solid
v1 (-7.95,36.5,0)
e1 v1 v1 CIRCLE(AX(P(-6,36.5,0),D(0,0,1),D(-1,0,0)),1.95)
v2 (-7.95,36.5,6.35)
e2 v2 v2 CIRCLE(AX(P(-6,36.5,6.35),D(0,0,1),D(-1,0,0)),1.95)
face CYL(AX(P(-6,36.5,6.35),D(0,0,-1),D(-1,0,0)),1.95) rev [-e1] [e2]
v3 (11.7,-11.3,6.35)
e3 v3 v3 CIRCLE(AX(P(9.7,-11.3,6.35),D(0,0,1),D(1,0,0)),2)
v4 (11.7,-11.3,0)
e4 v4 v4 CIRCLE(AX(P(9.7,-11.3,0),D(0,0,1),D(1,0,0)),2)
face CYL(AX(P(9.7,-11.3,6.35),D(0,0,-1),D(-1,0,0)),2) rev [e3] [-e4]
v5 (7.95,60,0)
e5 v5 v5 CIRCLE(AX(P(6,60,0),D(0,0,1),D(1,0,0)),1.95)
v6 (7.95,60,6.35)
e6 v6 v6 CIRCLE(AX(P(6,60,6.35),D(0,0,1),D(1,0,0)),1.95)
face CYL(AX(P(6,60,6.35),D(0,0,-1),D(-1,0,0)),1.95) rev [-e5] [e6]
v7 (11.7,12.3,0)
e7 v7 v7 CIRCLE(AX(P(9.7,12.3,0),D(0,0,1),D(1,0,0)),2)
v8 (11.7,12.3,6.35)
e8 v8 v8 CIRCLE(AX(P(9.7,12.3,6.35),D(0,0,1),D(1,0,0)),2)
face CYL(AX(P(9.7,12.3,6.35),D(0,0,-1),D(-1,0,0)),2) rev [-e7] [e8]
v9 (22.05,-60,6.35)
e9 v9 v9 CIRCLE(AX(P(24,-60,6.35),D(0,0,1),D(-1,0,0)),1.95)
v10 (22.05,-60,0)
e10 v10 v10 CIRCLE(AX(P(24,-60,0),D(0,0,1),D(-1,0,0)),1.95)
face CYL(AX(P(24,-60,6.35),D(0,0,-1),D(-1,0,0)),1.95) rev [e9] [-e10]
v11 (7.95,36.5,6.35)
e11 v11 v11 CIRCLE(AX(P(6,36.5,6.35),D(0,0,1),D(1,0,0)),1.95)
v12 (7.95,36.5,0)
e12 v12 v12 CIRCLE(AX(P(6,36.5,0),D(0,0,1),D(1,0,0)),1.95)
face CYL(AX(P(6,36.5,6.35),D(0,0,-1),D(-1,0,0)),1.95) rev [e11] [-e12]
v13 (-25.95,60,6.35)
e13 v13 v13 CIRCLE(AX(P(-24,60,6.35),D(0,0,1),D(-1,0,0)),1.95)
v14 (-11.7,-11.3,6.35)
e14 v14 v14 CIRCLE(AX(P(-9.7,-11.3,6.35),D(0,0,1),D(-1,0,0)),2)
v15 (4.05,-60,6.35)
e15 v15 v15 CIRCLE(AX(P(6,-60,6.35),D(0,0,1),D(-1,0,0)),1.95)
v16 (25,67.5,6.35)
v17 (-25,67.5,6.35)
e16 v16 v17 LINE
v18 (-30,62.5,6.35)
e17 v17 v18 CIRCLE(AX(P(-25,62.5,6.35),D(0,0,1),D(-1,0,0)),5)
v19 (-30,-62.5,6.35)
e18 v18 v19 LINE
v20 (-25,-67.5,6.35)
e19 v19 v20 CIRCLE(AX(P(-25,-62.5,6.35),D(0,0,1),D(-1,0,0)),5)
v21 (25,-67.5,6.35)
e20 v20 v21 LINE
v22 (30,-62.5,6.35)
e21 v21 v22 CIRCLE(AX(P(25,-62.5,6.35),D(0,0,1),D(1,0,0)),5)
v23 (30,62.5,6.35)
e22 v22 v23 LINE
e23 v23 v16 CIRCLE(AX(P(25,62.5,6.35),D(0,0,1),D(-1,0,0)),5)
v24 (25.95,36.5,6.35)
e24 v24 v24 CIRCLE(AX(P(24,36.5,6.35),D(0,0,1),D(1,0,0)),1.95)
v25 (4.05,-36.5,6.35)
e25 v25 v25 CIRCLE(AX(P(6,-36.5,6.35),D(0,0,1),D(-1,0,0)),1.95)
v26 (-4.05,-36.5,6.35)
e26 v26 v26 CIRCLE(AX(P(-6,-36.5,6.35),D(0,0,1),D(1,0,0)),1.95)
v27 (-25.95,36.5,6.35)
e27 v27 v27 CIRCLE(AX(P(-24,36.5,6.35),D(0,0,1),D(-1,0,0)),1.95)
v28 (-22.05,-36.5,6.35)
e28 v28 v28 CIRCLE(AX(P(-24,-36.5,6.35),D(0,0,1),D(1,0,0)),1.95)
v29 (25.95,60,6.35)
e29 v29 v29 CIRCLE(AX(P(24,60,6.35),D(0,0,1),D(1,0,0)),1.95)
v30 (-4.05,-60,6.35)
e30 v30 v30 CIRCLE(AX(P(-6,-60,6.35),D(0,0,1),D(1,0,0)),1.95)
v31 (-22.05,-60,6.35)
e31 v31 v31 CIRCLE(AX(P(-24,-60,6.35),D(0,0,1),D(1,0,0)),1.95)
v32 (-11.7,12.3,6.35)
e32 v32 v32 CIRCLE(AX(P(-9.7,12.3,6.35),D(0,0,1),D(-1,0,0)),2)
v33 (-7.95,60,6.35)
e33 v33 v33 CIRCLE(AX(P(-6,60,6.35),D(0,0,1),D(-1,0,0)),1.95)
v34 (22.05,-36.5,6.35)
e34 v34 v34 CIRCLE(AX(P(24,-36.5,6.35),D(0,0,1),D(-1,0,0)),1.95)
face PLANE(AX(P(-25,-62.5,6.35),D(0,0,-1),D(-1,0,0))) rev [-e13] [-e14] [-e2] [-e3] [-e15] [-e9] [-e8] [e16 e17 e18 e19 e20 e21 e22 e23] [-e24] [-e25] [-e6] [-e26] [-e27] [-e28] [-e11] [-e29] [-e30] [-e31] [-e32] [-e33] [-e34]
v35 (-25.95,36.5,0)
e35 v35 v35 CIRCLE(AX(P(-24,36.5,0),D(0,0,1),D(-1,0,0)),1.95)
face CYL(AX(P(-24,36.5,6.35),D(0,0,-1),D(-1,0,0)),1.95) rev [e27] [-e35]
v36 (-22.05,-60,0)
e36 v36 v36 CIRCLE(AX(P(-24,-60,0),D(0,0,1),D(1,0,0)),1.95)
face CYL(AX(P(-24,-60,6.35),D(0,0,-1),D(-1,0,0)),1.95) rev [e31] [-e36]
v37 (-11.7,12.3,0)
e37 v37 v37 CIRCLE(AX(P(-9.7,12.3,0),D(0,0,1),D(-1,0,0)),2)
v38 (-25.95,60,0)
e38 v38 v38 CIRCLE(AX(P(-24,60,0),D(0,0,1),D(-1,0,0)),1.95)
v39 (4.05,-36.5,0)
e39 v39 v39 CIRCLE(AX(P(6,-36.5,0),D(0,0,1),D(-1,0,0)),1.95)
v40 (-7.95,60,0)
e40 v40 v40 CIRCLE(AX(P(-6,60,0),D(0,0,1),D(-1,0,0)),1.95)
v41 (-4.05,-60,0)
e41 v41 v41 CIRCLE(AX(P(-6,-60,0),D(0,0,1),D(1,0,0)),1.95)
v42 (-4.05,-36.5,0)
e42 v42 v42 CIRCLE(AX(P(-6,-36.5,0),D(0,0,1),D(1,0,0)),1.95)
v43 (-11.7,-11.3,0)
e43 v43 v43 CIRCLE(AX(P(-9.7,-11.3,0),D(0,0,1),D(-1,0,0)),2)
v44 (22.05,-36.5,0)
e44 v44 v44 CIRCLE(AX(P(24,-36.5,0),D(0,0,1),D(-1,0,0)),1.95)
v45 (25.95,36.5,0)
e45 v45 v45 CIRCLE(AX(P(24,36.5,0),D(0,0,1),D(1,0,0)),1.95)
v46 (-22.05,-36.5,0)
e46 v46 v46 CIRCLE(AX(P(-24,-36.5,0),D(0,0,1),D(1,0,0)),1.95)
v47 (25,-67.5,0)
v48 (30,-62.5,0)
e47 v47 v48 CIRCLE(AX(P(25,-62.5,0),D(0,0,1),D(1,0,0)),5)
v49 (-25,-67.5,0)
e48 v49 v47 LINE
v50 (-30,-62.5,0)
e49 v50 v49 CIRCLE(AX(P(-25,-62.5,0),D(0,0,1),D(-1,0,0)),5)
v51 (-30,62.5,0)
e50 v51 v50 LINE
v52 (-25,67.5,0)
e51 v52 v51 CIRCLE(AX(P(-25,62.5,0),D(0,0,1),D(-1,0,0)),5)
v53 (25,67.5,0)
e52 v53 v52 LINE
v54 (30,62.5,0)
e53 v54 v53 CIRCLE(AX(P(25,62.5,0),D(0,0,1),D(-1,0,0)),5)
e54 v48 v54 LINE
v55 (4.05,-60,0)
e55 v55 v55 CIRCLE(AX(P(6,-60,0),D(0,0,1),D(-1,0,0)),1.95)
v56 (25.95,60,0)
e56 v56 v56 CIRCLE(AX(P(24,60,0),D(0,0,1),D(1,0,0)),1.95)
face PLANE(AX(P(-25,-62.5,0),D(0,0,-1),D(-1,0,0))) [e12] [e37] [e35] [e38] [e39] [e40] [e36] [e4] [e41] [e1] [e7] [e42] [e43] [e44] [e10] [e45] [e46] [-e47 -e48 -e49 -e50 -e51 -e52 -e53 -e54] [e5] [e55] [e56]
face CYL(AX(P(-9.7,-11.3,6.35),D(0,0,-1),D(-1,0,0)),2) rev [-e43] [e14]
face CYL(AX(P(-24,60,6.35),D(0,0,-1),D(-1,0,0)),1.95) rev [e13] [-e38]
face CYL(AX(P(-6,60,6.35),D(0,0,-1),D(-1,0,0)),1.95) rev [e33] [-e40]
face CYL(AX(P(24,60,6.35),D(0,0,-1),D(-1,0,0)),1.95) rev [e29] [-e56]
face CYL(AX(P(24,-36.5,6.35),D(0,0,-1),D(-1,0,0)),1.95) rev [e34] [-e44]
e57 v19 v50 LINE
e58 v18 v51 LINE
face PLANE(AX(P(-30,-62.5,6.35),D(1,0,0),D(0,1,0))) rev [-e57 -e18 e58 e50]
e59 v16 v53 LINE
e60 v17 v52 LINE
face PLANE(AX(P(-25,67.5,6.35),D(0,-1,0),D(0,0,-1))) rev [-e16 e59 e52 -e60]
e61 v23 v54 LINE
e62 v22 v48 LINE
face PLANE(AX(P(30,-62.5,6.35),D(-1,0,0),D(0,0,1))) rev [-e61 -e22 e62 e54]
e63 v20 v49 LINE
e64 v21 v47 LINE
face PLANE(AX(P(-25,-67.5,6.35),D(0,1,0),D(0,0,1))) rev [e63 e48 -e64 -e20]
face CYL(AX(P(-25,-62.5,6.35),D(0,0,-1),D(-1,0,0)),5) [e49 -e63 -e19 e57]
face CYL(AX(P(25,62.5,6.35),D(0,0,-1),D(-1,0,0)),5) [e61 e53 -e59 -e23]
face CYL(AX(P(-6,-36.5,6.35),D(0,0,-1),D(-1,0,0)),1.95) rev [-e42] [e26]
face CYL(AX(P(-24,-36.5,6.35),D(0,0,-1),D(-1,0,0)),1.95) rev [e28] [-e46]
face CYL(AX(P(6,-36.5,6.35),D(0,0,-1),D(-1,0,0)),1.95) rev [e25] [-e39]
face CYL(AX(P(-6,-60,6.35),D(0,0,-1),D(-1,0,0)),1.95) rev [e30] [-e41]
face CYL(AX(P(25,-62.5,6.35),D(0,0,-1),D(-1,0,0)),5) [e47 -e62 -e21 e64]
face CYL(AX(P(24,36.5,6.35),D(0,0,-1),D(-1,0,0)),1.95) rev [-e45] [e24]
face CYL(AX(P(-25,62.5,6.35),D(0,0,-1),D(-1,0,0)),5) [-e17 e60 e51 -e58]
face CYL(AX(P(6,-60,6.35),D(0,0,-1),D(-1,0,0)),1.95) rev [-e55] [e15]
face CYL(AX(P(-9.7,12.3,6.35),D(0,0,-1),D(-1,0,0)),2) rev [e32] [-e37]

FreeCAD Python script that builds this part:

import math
import FreeCAD as App
import Part
import Sketcher

V = App.Vector

doc = App.newDocument("Part")
body = doc.addObject("PartDesign::Body", "Body")

# Sketch on XY plane
sketch1 = body.newObject("Sketcher::SketchObject", "Sketch")
sketch1.AttachmentSupport = (doc.getObject("XY_Plane"), [""])
sketch1.MapMode = "FlatFace"
sketch1.addGeometry(Part.LineSegment(V(-25, -67.5, 0), V(25, -67.5, 0)), False)
sketch1.addGeometry(Part.ArcOfCircle(Part.Circle(V(25, -62.5, 0), V(0, 0, 1), 5), math.radians(-90), math.radians(0)), False)
sketch1.addGeometry(Part.LineSegment(V(30, -62.5, 0), V(30, 62.5, 0)), False)
sketch1.addGeometry(Part.ArcOfCircle(Part.Circle(V(25, 62.5, 0), V(0, 0, 1), 5), math.radians(0), math.radians(90)), False)
sketch1.addGeometry(Part.LineSegment(V(25, 67.5, 0), V(-25, 67.5, 0)), False)
sketch1.addGeometry(Part.ArcOfCircle(Part.Circle(V(-25, 62.5, 0), V(0, 0, 1), 5), math.radians(90), math.radians(180)), False)
sketch1.addGeometry(Part.LineSegment(V(-30, 62.5, 0), V(-30, -62.5, 0)), False)
sketch1.addGeometry(Part.ArcOfCircle(Part.Circle(V(-25, -62.5, 0), V(0, 0, 1), 5), math.radians(180), math.radians(270)), False)
sketch1.addGeometry(Part.Circle(V(-24, -60, 0), V(0, 0, 1), 1.95), False)
sketch1.addGeometry(Part.Circle(V(-24, -36.5, 0), V(0, 0, 1), 1.95), False)
sketch1.addGeometry(Part.Circle(V(-6, -60, 0), V(0, 0, 1), 1.95), False)
sketch1.addGeometry(Part.Circle(V(-6, -36.5, 0), V(0, 0, 1), 1.95), False)
sketch1.addGeometry(Part.Circle(V(-9.7, -11.3, 0), V(0, 0, 1), 2), False)
sketch1.addGeometry(Part.Circle(V(6, -60, 0), V(0, 0, 1), 1.95), False)
sketch1.addGeometry(Part.Circle(V(6, -36.5, 0), V(0, 0, 1), 1.95), False)
sketch1.addGeometry(Part.Circle(V(24, -60, 0), V(0, 0, 1), 1.95), False)
sketch1.addGeometry(Part.Circle(V(24, -36.5, 0), V(0, 0, 1), 1.95), False)
sketch1.addGeometry(Part.Circle(V(9.7, -11.3, 0), V(0, 0, 1), 2), False)
sketch1.addGeometry(Part.Circle(V(-9.7, 12.3, 0), V(0, 0, 1), 2), False)
sketch1.addGeometry(Part.Circle(V(-24, 36.5, 0), V(0, 0, 1), 1.95), False)
sketch1.addGeometry(Part.Circle(V(-24, 60, 0), V(0, 0, 1), 1.95), False)
sketch1.addGeometry(Part.Circle(V(-6, 36.5, 0), V(0, 0, 1), 1.95), False)
sketch1.addGeometry(Part.Circle(V(-6, 60, 0), V(0, 0, 1), 1.95), False)
sketch1.addGeometry(Part.Circle(V(9.7, 12.3, 0), V(0, 0, 1), 2), False)
sketch1.addGeometry(Part.Circle(V(6, 36.5, 0), V(0, 0, 1), 1.95), False)
sketch1.addGeometry(Part.Circle(V(6, 60, 0), V(0, 0, 1), 1.95), False)
sketch1.addGeometry(Part.Circle(V(24, 36.5, 0), V(0, 0, 1), 1.95), False)
sketch1.addGeometry(Part.Circle(V(24, 60, 0), V(0, 0, 1), 1.95), False)
sketch1.addConstraint(Sketcher.Constraint("Tangent", 0, 2, 1, 1))
sketch1.addConstraint(Sketcher.Constraint("Tangent", 1, 2, 2, 1))
sketch1.addConstraint(Sketcher.Constraint("Tangent", 2, 2, 3, 1))
sketch1.addConstraint(Sketcher.Constraint("Tangent", 3, 2, 4, 1))
sketch1.addConstraint(Sketcher.Constraint("Tangent", 4, 2, 5, 1))
sketch1.addConstraint(Sketcher.Constraint("Tangent", 5, 2, 6, 1))
sketch1.addConstraint(Sketcher.Constraint("Tangent", 6, 2, 7, 1))
sketch1.addConstraint(Sketcher.Constraint("Tangent", 7, 2, 0, 1))
sketch1.addConstraint(Sketcher.Constraint("Horizontal", 0))
sketch1.addConstraint(Sketcher.Constraint("Vertical", 2))
sketch1.addConstraint(Sketcher.Constraint("Horizontal", 4))
sketch1.addConstraint(Sketcher.Constraint("Vertical", 6))
sketch1.addConstraint(Sketcher.Constraint("Equal", 1, 3))
sketch1.addConstraint(Sketcher.Constraint("Equal", 3, 5))
sketch1.addConstraint(Sketcher.Constraint("Equal", 5, 7))
sketch1.addConstraint(Sketcher.Constraint("Equal", 8, 9))
sketch1.addConstraint(Sketcher.Constraint("Equal", 9, 10))
sketch1.addConstraint(Sketcher.Constraint("Equal", 10, 11))
sketch1.addConstraint(Sketcher.Constraint("Equal", 11, 13))
sketch1.addConstraint(Sketcher.Constraint("Equal", 13, 14))
sketch1.addConstraint(Sketcher.Constraint("Equal", 14, 15))
sketch1.addConstraint(Sketcher.Constraint("Equal", 15, 16))
sketch1.addConstraint(Sketcher.Constraint("Equal", 12, 17))
sketch1.addConstraint(Sketcher.Constraint("Equal", 17, 18))
sketch1.addConstraint(Sketcher.Constraint("Equal", 16, 19))
sketch1.addConstraint(Sketcher.Constraint("Equal", 19, 20))
sketch1.addConstraint(Sketcher.Constraint("Equal", 20, 21))
sketch1.addConstraint(Sketcher.Constraint("Equal", 21, 22))
sketch1.addConstraint(Sketcher.Constraint("Equal", 18, 23))
sketch1.addConstraint(Sketcher.Constraint("Equal", 22, 24))
sketch1.addConstraint(Sketcher.Constraint("Equal", 24, 25))
sketch1.addConstraint(Sketcher.Constraint("Equal", 25, 26))
sketch1.addConstraint(Sketcher.Constraint("Equal", 26, 27))
sketch1.addConstraint(Sketcher.Constraint("Symmetric", 1, 3, 5, 3, -1, 1))
sketch1.addConstraint(Sketcher.Constraint("Symmetric", 16, 3, 19, 3, -1, 1))
sketch1.addConstraint(Sketcher.Constraint("Symmetric", 15, 3, 20, 3, -1, 1))
sketch1.addConstraint(Sketcher.Constraint("Symmetric", 14, 3, 21, 3, -1, 1))
sketch1.addConstraint(Sketcher.Constraint("Symmetric", 13, 3, 22, 3, -1, 1))
sketch1.addConstraint(Sketcher.Constraint("Symmetric", 11, 3, 24, 3, -1, 1))
sketch1.addConstraint(Sketcher.Constraint("Symmetric", 10, 3, 25, 3, -1, 1))
sketch1.addConstraint(Sketcher.Constraint("Symmetric", 9, 3, 26, 3, -1, 1))
sketch1.addConstraint(Sketcher.Constraint("Symmetric", 8, 3, 27, 3, -1, 1))
sketch1.addConstraint(Sketcher.Constraint("Symmetric", 10, 3, 13, 3, -2))
sketch1.addConstraint(Sketcher.Constraint("Symmetric", 11, 3, 14, 3, -2))
sketch1.addConstraint(Sketcher.Constraint("Symmetric", 8, 3, 15, 3, -2))
sketch1.addConstraint(Sketcher.Constraint("Symmetric", 9, 3, 16, 3, -2))
sketch1.addConstraint(Sketcher.Constraint("Symmetric", 12, 3, 17, 3, -2))
sketch1.addConstraint(Sketcher.Constraint("Symmetric", 18, 3, 23, 3, -2))
sketch1.addConstraint(Sketcher.Constraint("Horizontal", 8, 3, 10, 3))
sketch1.addConstraint(Sketcher.Constraint("Horizontal", 9, 3, 11, 3))
sketch1.addConstraint(Sketcher.Constraint("Vertical", 8, 3, 9, 3))
sketch1.addConstraint(Sketcher.Constraint("Vertical", 10, 3, 11, 3))
sketch1.addConstraint(Sketcher.Constraint("Vertical", 12, 3, 18, 3))
sketch1.addConstraint(Sketcher.Constraint("Diameter", 12, 4.0))
sketch1.addConstraint(Sketcher.Constraint("Radius", 1, 5.0))
sketch1.addConstraint(Sketcher.Constraint("Diameter", 8, 3.9))
sketch1.addConstraint(Sketcher.Constraint("DistanceX", 0, 1, 0, 2, 50.0))
sketch1.addConstraint(Sketcher.Constraint("DistanceY", 2, 1, 2, 2, 125.0))
sketch1.addConstraint(Sketcher.Constraint("DistanceX", 8, 3, -1, 1, 24.0))
sketch1.addConstraint(Sketcher.Constraint("DistanceY", 8, 3, -1, 1, 60.0))
sketch1.addConstraint(Sketcher.Constraint("DistanceX", 10, 3, -1, 1, 6.0))
sketch1.addConstraint(Sketcher.Constraint("DistanceY", 7, 3, 9, 3, 26.0))
sketch1.addConstraint(Sketcher.Constraint("DistanceX", 12, 3, -1, 1, 9.7))
sketch1.addConstraint(Sketcher.Constraint("DistanceY", 12, 3, -1, 1, 11.3))
sketch1.addConstraint(Sketcher.Constraint("DistanceY", -1, 1, 18, 3, 12.3))
pad1 = body.newObject("PartDesign::Pad", "Pad")
pad1.Profile = sketch1
pad1.Length = 6.35

doc.recompute()
